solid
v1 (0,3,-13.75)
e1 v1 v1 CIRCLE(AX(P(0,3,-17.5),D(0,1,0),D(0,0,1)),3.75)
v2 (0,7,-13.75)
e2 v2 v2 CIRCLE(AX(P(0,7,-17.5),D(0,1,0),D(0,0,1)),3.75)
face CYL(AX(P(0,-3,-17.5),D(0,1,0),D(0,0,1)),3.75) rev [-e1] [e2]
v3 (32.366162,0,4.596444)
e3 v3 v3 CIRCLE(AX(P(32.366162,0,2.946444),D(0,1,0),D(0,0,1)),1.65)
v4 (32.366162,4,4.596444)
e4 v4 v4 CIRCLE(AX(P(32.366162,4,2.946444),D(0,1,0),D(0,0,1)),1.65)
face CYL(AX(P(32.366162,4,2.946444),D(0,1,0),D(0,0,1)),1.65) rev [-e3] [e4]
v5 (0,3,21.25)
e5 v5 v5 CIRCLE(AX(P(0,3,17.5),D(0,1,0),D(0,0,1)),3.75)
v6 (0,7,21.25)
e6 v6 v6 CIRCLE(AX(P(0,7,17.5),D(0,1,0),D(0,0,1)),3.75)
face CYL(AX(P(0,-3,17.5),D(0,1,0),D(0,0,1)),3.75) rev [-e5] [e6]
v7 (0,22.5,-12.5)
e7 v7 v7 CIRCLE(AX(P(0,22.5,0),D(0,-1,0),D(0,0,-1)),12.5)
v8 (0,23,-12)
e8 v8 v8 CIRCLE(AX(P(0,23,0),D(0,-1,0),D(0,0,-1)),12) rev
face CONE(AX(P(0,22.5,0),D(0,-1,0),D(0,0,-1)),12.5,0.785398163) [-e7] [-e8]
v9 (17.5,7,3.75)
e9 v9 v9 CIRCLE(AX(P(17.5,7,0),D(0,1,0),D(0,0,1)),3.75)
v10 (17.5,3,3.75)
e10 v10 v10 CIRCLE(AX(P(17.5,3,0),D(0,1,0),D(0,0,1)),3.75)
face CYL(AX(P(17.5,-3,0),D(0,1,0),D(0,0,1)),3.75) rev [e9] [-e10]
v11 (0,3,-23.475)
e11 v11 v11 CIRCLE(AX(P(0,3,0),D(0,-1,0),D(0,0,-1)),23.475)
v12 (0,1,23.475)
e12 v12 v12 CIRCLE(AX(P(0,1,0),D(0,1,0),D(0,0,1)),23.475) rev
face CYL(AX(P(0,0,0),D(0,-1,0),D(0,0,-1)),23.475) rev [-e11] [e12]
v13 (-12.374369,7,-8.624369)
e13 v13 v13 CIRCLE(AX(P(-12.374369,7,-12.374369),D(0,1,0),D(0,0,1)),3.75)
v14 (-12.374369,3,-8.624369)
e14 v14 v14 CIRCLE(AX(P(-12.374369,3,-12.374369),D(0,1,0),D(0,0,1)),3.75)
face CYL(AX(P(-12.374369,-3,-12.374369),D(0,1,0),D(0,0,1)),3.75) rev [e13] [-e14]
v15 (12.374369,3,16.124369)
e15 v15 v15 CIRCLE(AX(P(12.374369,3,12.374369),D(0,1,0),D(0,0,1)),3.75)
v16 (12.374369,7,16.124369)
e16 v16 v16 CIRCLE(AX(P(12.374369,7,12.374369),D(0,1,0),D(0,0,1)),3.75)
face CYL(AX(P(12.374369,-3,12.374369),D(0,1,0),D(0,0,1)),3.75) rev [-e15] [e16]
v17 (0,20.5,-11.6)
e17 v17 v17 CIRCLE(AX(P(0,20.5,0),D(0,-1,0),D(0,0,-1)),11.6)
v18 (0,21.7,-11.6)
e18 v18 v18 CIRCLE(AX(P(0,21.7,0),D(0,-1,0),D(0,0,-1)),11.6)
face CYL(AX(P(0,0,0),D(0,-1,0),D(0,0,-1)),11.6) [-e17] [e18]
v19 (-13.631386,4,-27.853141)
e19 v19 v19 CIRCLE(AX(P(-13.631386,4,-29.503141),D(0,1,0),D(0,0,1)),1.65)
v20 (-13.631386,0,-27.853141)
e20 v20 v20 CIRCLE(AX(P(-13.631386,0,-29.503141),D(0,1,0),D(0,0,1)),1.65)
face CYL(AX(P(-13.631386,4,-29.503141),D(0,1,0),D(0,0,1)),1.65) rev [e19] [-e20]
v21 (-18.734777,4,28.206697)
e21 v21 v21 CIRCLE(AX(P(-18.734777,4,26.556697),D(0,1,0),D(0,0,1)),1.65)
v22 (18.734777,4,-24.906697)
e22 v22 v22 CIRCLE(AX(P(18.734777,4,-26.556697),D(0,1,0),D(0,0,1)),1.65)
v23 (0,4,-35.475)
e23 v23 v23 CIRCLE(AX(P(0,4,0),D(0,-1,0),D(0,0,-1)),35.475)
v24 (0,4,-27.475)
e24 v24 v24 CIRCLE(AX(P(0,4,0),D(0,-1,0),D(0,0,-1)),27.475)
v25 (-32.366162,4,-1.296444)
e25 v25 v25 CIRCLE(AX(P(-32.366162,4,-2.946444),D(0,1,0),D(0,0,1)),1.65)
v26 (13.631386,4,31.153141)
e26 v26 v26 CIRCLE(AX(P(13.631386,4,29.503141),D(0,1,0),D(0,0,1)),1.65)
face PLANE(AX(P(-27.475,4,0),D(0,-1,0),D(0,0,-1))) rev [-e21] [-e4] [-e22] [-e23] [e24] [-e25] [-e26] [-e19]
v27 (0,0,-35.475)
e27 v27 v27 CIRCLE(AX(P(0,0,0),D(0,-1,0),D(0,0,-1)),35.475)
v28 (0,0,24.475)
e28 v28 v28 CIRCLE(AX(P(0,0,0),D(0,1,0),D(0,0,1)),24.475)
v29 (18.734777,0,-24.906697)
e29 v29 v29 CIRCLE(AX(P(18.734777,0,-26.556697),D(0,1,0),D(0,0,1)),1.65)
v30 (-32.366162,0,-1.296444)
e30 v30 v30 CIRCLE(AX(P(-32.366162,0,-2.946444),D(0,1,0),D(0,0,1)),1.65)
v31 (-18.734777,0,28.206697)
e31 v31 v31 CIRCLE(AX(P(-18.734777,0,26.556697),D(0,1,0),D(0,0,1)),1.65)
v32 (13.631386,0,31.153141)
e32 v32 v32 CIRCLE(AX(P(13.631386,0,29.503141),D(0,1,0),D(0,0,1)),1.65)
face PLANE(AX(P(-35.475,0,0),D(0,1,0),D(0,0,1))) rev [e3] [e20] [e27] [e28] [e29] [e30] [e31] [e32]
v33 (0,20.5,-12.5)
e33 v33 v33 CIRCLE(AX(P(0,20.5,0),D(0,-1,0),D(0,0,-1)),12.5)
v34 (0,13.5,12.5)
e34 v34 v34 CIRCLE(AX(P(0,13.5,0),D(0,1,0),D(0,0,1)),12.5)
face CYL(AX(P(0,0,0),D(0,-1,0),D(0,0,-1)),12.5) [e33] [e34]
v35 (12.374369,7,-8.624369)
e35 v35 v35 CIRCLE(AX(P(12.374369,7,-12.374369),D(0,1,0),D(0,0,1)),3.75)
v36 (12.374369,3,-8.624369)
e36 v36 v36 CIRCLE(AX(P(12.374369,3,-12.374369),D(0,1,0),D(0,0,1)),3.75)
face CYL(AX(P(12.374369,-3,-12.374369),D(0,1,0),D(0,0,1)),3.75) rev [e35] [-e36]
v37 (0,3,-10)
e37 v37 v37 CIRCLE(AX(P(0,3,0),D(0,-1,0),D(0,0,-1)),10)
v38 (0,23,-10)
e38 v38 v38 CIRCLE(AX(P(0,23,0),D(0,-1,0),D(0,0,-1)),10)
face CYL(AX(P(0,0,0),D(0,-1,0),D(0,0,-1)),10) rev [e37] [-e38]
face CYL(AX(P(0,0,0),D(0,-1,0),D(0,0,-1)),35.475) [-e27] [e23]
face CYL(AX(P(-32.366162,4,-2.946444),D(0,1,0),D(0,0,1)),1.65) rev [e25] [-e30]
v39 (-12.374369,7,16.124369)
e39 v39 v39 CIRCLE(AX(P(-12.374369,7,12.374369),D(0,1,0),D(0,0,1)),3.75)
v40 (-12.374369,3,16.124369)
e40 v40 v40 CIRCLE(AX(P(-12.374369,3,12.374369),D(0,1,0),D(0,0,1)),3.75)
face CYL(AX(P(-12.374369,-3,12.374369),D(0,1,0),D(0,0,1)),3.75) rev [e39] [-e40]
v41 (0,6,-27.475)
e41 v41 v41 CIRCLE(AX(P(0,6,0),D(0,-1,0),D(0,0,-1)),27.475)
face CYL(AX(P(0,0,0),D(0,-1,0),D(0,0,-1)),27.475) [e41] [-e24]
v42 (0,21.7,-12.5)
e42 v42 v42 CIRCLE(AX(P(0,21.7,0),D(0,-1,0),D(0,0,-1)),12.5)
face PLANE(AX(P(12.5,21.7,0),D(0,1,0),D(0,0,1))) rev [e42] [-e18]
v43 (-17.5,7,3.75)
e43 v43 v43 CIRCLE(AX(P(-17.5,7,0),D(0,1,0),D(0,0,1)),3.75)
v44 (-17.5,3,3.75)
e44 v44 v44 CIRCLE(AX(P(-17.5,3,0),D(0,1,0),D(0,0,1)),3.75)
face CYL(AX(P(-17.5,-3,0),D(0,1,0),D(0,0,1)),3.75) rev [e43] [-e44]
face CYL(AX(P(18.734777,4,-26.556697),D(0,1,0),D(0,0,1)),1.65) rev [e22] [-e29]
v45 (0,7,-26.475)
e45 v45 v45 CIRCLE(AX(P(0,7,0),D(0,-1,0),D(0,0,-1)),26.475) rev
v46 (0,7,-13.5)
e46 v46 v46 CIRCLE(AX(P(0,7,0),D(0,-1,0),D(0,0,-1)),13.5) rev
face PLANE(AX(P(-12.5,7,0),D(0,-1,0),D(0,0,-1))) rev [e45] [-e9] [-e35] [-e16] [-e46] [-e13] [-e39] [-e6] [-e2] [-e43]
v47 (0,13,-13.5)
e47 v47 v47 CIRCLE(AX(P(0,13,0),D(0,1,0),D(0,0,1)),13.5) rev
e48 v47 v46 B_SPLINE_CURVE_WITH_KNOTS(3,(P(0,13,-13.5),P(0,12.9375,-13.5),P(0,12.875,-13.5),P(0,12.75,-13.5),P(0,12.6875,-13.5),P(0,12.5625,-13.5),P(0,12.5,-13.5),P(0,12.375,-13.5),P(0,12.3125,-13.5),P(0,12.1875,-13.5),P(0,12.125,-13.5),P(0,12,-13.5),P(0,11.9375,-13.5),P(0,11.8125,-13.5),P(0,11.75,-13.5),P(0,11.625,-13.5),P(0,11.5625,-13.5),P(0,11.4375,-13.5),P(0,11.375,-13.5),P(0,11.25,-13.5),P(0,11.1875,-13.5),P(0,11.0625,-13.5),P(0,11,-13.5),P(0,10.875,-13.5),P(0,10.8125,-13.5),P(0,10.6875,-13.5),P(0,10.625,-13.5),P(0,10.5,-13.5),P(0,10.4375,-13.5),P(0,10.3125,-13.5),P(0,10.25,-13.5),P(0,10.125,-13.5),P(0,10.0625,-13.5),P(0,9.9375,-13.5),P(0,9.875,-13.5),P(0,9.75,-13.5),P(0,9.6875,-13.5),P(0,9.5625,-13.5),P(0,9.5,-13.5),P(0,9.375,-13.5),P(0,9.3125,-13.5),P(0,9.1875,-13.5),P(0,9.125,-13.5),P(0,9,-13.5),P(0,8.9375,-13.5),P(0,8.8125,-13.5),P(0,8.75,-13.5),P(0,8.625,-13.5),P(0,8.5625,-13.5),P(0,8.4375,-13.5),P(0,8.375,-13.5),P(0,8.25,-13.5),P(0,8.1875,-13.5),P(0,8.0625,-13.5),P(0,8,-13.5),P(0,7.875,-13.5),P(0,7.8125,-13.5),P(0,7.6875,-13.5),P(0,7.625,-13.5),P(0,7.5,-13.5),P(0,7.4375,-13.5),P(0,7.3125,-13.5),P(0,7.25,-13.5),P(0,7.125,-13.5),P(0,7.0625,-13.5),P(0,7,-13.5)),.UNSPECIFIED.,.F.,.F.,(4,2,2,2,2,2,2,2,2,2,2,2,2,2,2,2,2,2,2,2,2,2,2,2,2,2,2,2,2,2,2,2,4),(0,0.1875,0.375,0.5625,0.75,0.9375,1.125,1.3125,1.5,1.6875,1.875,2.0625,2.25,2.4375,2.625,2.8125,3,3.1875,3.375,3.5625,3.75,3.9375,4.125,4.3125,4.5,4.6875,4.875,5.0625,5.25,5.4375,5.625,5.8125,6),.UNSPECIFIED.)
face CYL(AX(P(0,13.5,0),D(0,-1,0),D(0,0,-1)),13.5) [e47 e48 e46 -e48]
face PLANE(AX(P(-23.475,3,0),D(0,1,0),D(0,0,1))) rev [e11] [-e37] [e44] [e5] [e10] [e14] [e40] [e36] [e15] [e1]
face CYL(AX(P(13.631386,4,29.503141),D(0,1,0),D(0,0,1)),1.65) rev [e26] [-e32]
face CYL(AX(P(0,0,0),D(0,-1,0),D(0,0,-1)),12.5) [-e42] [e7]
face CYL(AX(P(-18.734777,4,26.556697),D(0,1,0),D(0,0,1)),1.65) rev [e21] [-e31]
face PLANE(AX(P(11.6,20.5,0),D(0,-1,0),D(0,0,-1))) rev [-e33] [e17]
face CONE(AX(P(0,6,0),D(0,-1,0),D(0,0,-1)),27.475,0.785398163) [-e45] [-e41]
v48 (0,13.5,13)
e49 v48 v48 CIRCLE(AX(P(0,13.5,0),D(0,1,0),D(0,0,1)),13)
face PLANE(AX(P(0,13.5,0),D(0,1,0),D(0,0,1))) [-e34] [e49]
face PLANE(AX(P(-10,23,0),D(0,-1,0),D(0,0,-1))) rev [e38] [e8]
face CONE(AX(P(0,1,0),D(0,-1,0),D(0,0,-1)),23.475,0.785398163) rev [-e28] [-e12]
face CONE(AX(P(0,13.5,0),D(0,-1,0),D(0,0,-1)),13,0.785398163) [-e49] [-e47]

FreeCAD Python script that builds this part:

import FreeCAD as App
import Part
import Sketcher


def edges_at(feature, points):
    """Names of the edges that pass closest to the given points."""
    edges = feature.Shape.Edges
    near = lambda p: min(range(len(edges)), key=lambda i: edges[i].distToShape(Part.Vertex(*p))[0])
    return sorted({f"Edge{near(p) + 1}" for p in points})


def add_polygon(sketch, points):
    """Adds a closed chain of lines whose ends are joined by coincident constraints."""
    first, n = sketch.GeometryCount, len(points)
    for a, b in zip(points, points[1:] + points[:1]):
        sketch.addGeometry(Part.LineSegment(App.Vector(*a, 0), App.Vector(*b, 0)), False)
    for i in range(n):
        sketch.addConstraint(Sketcher.Constraint("Coincident", first + i, 2, first + (i + 1) % n, 1))

doc = App.newDocument("Part")
body = doc.addObject("PartDesign::Body", "Body")

# Sketch on XY plane
sketch1 = body.newObject("Sketcher::SketchObject", "Sketch")
sketch1.AttachmentSupport = (doc.getObject("XY_Plane"), [""])
sketch1.MapMode = "FlatFace"
add_polygon(sketch1, [(-35.5, 0), (-23.5, 0), (-23.5, 3), (-10, 3), (-10, 23), (-12.5, 23), (-12.5, 7), (-27.5, 7), (-27.5, 4), (-35.5, 4)])  # lines 0-9
sketch1.addConstraint(Sketcher.Constraint("Horizontal", 0))
sketch1.addConstraint(Sketcher.Constraint("Vertical", 1))
sketch1.addConstraint(Sketcher.Constraint("Horizontal", 2))
sketch1.addConstraint(Sketcher.Constraint("Vertical", 3))
sketch1.addConstraint(Sketcher.Constraint("Horizontal", 4))
sketch1.addConstraint(Sketcher.Constraint("Vertical", 5))
sketch1.addConstraint(Sketcher.Constraint("Horizontal", 6))
sketch1.addConstraint(Sketcher.Constraint("Vertical", 7))
sketch1.addConstraint(Sketcher.Constraint("Horizontal", 8))
sketch1.addConstraint(Sketcher.Constraint("Vertical", 9))
sketch1.addConstraint(Sketcher.Constraint("PointOnObject", 0, 2, -1))
sketch1.addConstraint(Sketcher.Constraint("Equal", 1, 7))
sketch1.addConstraint(Sketcher.Constraint("DistanceX", 0, 1, 0, 2, 12.0))
sketch1.addConstraint(Sketcher.Constraint("DistanceX", 8, 2, 8, 1, 8.0))
sketch1.addConstraint(Sketcher.Constraint("DistanceY", 1, 1, 1, 2, 3.0))
sketch1.addConstraint(Sketcher.Constraint("DistanceY", 3, 1, 3, 2, 20.0))
sketch1.addConstraint(Sketcher.Constraint("DistanceY", 5, 2, 5, 1, 16.0))
sketch1.addConstraint(Sketcher.Constraint("DistanceX", 4, 2, 4, 1, 2.5))
sketch1.addConstraint(Sketcher.Constraint("DistanceX", 2, 2, -1, 1, 10.0))
sketch1.addConstraint(Sketcher.Constraint("DistanceX", 2, 1, 2, 2, 13.475))
revolution = body.newObject("PartDesign::Revolution", "Revolution")
revolution.Profile = sketch1
revolution.ReferenceAxis = (sketch1, ["V_Axis"])
revolution.Angle = 360

# Sketch on XZ plane
sketch2 = body.newObject("Sketcher::SketchObject", "Sketch001")
sketch2.AttachmentSupport = (doc.getObject("XZ_Plane"), [""])
sketch2.MapMode = "FlatFace"
sketch2.AttachmentOffset = App.Placement(App.Vector(0, 0, -7), App.Rotation())
sketch2.addGeometry(Part.Circle(App.Vector(0, -17.5, 0), App.Vector(0, 0, 1), 3.8), False)
sketch2.addGeometry(Part.Circle(App.Vector(12.4, -12.4, 0), App.Vector(0, 0, 1), 3.8), False)
sketch2.addGeometry(Part.Circle(App.Vector(17.5, 0, 0), App.Vector(0, 0, 1), 3.8), False)
sketch2.addGeometry(Part.Circle(App.Vector(12.4, 12.4, 0), App.Vector(0, 0, 1), 3.8), False)
sketch2.addGeometry(Part.Circle(App.Vector(0, 17.5, 0), App.Vector(0, 0, 1), 3.8), False)
sketch2.addGeometry(Part.Circle(App.Vector(-12.4, 12.4, 0), App.Vector(0, 0, 1), 3.8), False)
sketch2.addGeometry(Part.Circle(App.Vector(-17.5, 0, 0), App.Vector(0, 0, 1), 3.8), False)
sketch2.addGeometry(Part.Circle(App.Vector(-12.4, -12.4, 0), App.Vector(0, 0, 1), 3.8), False)
sketch2.addConstraint(Sketcher.Constraint("Equal", 0, 1))
sketch2.addConstraint(Sketcher.Constraint("Equal", 1, 2))
sketch2.addConstraint(Sketcher.Constraint("Equal", 2, 3))
sketch2.addConstraint(Sketcher.Constraint("Equal", 3, 4))
sketch2.addConstraint(Sketcher.Constraint("Equal", 4, 5))
sketch2.addConstraint(Sketcher.Constraint("Equal", 5, 6))
sketch2.addConstraint(Sketcher.Constraint("Equal", 6, 7))
sketch2.addConstraint(Sketcher.Constraint("Symmetric", 0, 3, 4, 3, -1, 1))
sketch2.addConstraint(Sketcher.Constraint("Symmetric", 1, 3, 5, 3, -1, 1))
sketch2.addConstraint(Sketcher.Constraint("Symmetric", 2, 3, 6, 3, -1, 1))
sketch2.addConstraint(Sketcher.Constraint("Symmetric", 3, 3, 7, 3, -1, 1))
sketch2.addConstraint(Sketcher.Constraint("Symmetric", 3, 3, 5, 3, -2))
sketch2.addConstraint(Sketcher.Constraint("PointOnObject", 0, 3, -2))
sketch2.addConstraint(Sketcher.Constraint("PointOnObject", 2, 3, -1))
sketch2.addConstraint(Sketcher.Constraint("Diameter", 0, 7.5))
sketch2.addConstraint(Sketcher.Constraint("DistanceY", 0, 3, 4, 3, 35.0))
sketch2.addConstraint(Sketcher.Constraint("DistanceX", -1, 1, 2, 3, 17.5))
sketch2.addConstraint(Sketcher.Constraint("DistanceX", -1, 1, 1, 3, 12.374369))
sketch2.addConstraint(Sketcher.Constraint("DistanceY", 1, 3, -1, 1, 12.374369))
pocket1 = body.newObject("PartDesign::Pocket", "Pocket")
pocket1.Profile = sketch2
pocket1.Length = 10
pocket1.Reversed = True
doc.recompute()

chamfer = body.newObject("PartDesign::Chamfer", "Chamfer")
chamfer.Base = (pocket1, edges_at(pocket1, [(0, 0, 23.475)]))
chamfer.Size = 1
doc.recompute()

chamfer2 = body.newObject("PartDesign::Chamfer", "Chamfer001")
chamfer2.Base = (chamfer, edges_at(chamfer, [(0, 7, 27.475)]))
chamfer2.Size = 1

# Sketch on XY plane
sketch3 = body.newObject("Sketcher::SketchObject", "Sketch002")
sketch3.AttachmentSupport = (doc.getObject("XY_Plane"), [""])
sketch3.MapMode = "FlatFace"
add_polygon(sketch3, [(11.6, 21.7), (11.6, 20.5), (12.5, 20.5), (12.5, 21.7)])  # lines 0-3
sketch3.addConstraint(Sketcher.Constraint("Vertical", 0))
sketch3.addConstraint(Sketcher.Constraint("Horizontal", 1))
sketch3.addConstraint(Sketcher.Constraint("Vertical", 2))
sketch3.addConstraint(Sketcher.Constraint("Horizontal", 3))
sketch3.addConstraint(Sketcher.Constraint("DistanceX", 1, 1, 1, 2, 0.9))
sketch3.addConstraint(Sketcher.Constraint("DistanceY", 0, 2, 0, 1, 1.2))
sketch3.addConstraint(Sketcher.Constraint("DistanceX", -1, 1, 0, 2, 11.6))
sketch3.addConstraint(Sketcher.Constraint("DistanceY", -1, 1, 0, 2, 20.5))
groove = body.newObject("PartDesign::Groove", "Groove")
groove.Profile = sketch3
groove.ReferenceAxis = (sketch3, ["V_Axis"])
groove.Angle = 360
doc.recompute()

chamfer3 = body.newObject("PartDesign::Chamfer", "Chamfer002")
chamfer3.Base = (groove, edges_at(groove, [(0, 23, 12.5)]))
chamfer3.Size = 0.5

# Sketch on XZ plane
sketch4 = body.newObject("Sketcher::SketchObject", "Sketch003")
sketch4.AttachmentSupport = (doc.getObject("XZ_Plane"), [""])
sketch4.MapMode = "FlatFace"
sketch4.AttachmentOffset = App.Placement(App.Vector(0, 0, -4), App.Rotation())
sketch4.addGeometry(Part.Circle(App.Vector(18.7, -26.6, 0), App.Vector(0, 0, 1), 1.6), False)
sketch4.addConstraint(Sketcher.Constraint("Diameter", 0, 3.3))
sketch4.addConstraint(Sketcher.Constraint("DistanceX", -1, 1, 0, 3, 18.734777))
sketch4.addConstraint(Sketcher.Constraint("DistanceY", 0, 3, -1, 1, 26.556697))
doc.recompute()
hole = body.newObject("PartDesign::Hole", "Hole")
hole.Profile = sketch4
hole.ThreadType = "None"
hole.Diameter = 3.3
hole.DepthType = "ThroughAll"
hole.Reversed = True
doc.recompute()

polarpattern = body.newObject("PartDesign::PolarPattern", "PolarPattern")
polarpattern.Originals = [hole]
polarpattern.Axis = (doc.getObject("Y_Axis"), [""])
polarpattern.Angle = 360
polarpattern.Occurrences = 6
body.Tip = polarpattern

# Sketch on XZ plane
sketch5 = body.newObject("Sketcher::SketchObject", "Sketch004")
sketch5.AttachmentSupport = (doc.getObject("XZ_Plane"), [""])
sketch5.MapMode = "FlatFace"
sketch5.AttachmentOffset = App.Placement(App.Vector(0, 0, -7), App.Rotation())
sketch5.addGeometry(Part.Circle(App.Vector(0, 0, 0), App.Vector(0, 0, 1), 14), False)
sketch5.addGeometry(Part.Circle(App.Vector(0, 0, 0), App.Vector(0, 0, 1), 12), False)
sketch5.addConstraint(Sketcher.Constraint("Coincident", 0, 3, -1, 1))
sketch5.addConstraint(Sketcher.Constraint("Coincident", 1, 3, -1, 1))
sketch5.addConstraint(Sketcher.Constraint("Diameter", 0, 27.0))
sketch5.addConstraint(Sketcher.Constraint("Diameter", 1, 25.0))
pad1 = body.newObject("PartDesign::Pad", "Pad")
pad1.Profile = sketch5
pad1.Length = 6.5
pad1.Reversed = True
doc.recompute()

chamfer4 = body.newObject("PartDesign::Chamfer", "Chamfer003")
chamfer4.Base = (pad1, edges_at(pad1, [(0, 13.5, 13.5)]))
chamfer4.Size = 0.5

doc.recompute()
